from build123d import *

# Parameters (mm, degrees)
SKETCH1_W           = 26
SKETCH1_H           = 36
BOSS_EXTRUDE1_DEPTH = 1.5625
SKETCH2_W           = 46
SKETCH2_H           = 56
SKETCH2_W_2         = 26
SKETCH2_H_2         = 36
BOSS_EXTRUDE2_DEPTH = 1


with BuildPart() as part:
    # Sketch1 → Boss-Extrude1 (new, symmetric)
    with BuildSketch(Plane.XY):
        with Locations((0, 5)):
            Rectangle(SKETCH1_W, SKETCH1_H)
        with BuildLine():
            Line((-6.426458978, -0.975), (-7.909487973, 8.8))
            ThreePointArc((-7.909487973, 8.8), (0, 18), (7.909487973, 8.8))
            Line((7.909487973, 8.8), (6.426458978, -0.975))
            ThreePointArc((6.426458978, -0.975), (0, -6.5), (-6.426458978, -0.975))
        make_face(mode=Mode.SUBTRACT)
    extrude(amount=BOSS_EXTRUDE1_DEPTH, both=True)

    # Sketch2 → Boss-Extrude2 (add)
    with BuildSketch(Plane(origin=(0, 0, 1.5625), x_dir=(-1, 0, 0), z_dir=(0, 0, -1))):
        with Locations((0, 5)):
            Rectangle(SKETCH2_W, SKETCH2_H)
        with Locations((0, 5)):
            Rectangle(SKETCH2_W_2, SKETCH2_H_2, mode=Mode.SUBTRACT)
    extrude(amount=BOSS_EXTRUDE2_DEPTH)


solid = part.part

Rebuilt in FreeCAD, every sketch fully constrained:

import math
import FreeCAD as App
import Part
import Sketcher


def add_polygon(sketch, points):
    """Adds a closed chain of lines whose ends are joined by coincident constraints."""
    first, n = sketch.GeometryCount, len(points)
    for a, b in zip(points, points[1:] + points[:1]):
        sketch.addGeometry(Part.LineSegment(App.Vector(*a, 0), App.Vector(*b, 0)), False)
    for i in range(n):
        sketch.addConstraint(Sketcher.Constraint("Coincident", first + i, 2, first + (i + 1) % n, 1))

doc = App.newDocument("Part")
body = doc.addObject("PartDesign::Body", "Body")

sketch1 = doc.addObject("Sketcher::SketchObject", "Sketch")
body.addObject(sketch1)
sketch1.AttachmentSupport = (doc.XY_Plane, [""])
sketch1.MapMode = "FlatFace"
add_polygon(sketch1, [(-13, 23), (-13, -13), (13, -13), (13, 23)])
sketch1.addGeometry(Part.ArcOfCircle(Part.Circle(App.Vector(0, 0, 0), App.Vector(0, 0, 1), 6), math.radians(-171), math.radians(-9)), False)
sketch1.addGeometry(Part.LineSegment(App.Vector(-6, -1, 0), App.Vector(-8, 9, 0)), False)
sketch1.addGeometry(Part.ArcOfCircle(Part.Circle(App.Vector(0, 10, 0), App.Vector(0, 0, 1), 8), math.radians(-9), math.radians(189)), False)
sketch1.addGeometry(Part.LineSegment(App.Vector(8, 9, 0), App.Vector(6, -1, 0)), False)
sketch1.addConstraint(Sketcher.Constraint("Tangent", 4, 1, 5, 1))
sketch1.addConstraint(Sketcher.Constraint("Tangent", 5, 2, 6, 2))
sketch1.addConstraint(Sketcher.Constraint("Tangent", 6, 1, 7, 1))
sketch1.addConstraint(Sketcher.Constraint("Tangent", 7, 2, 4, 2))
sketch1.addConstraint(Sketcher.Constraint("Vertical", 0))
sketch1.addConstraint(Sketcher.Constraint("Horizontal", 1))
sketch1.addConstraint(Sketcher.Constraint("Vertical", 2))
sketch1.addConstraint(Sketcher.Constraint("Horizontal", 3))
sketch1.addConstraint(Sketcher.Constraint("Coincident", 4, 3, -1, 1))
sketch1.addConstraint(Sketcher.Constraint("PointOnObject", 6, 3, -2))
sketch1.addConstraint(Sketcher.Constraint("Radius", 6, 8.0))
sketch1.addConstraint(Sketcher.Constraint("Radius", 4, 6.5))
sketch1.addConstraint(Sketcher.Constraint("DistanceX", 1, 1, 1, 2, 26.0))
sketch1.addConstraint(Sketcher.Constraint("DistanceY", 0, 2, 0, 1, 36.0))
sketch1.addConstraint(Sketcher.Constraint("DistanceY", -1, 1, 6, 3, 10.0))
sketch1.addConstraint(Sketcher.Constraint("DistanceX", 0, 2, -1, 1, 13.0))
sketch1.addConstraint(Sketcher.Constraint("DistanceY", 0, 2, -1, 1, 13.0))
pad1 = doc.addObject("PartDesign::Pad", "Pad")
body.addObject(pad1)
pad1.Profile = sketch1
pad1.Length = 3.125
pad1.Midplane = True

sketch2 = doc.addObject("Sketcher::SketchObject", "Sketch001")
body.addObject(sketch2)
sketch2.AttachmentSupport = (doc.XY_Plane, [""])
sketch2.MapMode = "FlatFace"
sketch2.AttachmentOffset = App.Placement(App.Vector(0, 0, 1.5625), App.Rotation())
add_polygon(sketch2, [(23, 33), (23, -23), (-23, -23), (-23, 33)])
add_polygon(sketch2, [(-13, -13), (13, -13), (13, 23), (-13, 23)])
sketch2.addConstraint(Sketcher.Constraint("Vertical", 0))
sketch2.addConstraint(Sketcher.Constraint("Horizontal", 1))
sketch2.addConstraint(Sketcher.Constraint("Vertical", 2))
sketch2.addConstraint(Sketcher.Constraint("Horizontal", 3))
sketch2.addConstraint(Sketcher.Constraint("Horizontal", 4))
sketch2.addConstraint(Sketcher.Constraint("Vertical", 5))
sketch2.addConstraint(Sketcher.Constraint("Horizontal", 6))
sketch2.addConstraint(Sketcher.Constraint("Vertical", 7))
sketch2.addConstraint(Sketcher.Constraint("DistanceX", 1, 2, 1, 1, 46.0))
sketch2.addConstraint(Sketcher.Constraint("DistanceX", 4, 1, 4, 2, 26.0))
sketch2.addConstraint(Sketcher.Constraint("DistanceY", 0, 2, 0, 1, 56.0))
sketch2.addConstraint(Sketcher.Constraint("DistanceY", 5, 1, 5, 2, 36.0))
sketch2.addConstraint(Sketcher.Constraint("DistanceX", -1, 1, 0, 2, 23.0))
sketch2.addConstraint(Sketcher.Constraint("DistanceY", 0, 2, -1, 1, 23.0))
sketch2.addConstraint(Sketcher.Constraint("DistanceX", -1, 1, 4, 2, 13.0))
sketch2.addConstraint(Sketcher.Constraint("DistanceY", 4, 2, -1, 1, 13.0))
pad2 = doc.addObject("PartDesign::Pad", "Pad001")
body.addObject(pad2)
pad2.Profile = sketch2
pad2.Length = 1
pad2.Reversed = True

doc.recompute()
